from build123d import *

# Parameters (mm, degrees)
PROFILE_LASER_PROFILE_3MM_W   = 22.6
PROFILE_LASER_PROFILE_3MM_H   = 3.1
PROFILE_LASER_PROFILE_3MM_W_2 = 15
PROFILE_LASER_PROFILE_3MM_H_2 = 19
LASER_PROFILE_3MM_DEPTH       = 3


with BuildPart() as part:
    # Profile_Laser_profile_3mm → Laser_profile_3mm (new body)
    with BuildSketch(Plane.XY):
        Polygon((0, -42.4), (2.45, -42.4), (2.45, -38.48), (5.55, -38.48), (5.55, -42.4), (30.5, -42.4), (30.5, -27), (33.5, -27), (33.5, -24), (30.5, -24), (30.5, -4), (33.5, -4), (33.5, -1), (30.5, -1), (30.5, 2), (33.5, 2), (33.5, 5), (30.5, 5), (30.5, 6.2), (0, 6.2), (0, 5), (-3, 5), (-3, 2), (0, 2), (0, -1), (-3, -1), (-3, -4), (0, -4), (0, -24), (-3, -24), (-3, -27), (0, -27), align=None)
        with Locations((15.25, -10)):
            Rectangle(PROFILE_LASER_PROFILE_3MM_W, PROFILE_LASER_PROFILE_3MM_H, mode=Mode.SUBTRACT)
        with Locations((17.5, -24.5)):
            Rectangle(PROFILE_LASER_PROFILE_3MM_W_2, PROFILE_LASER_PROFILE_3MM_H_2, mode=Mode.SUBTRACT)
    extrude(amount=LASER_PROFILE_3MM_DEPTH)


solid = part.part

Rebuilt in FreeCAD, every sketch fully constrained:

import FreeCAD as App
import Part
import Sketcher
from FreeCAD import Vector
Q = App.Units.Quantity

doc = App.newDocument("Part")
body = doc.addObject("PartDesign::Body", "Body")

# Sketch on XY plane
sketch1 = doc.addObject("Sketcher::SketchObject", "Sketch")
body.addObject(sketch1)
sketch1.AttachmentSupport = (doc.XY_Plane, [""])
sketch1.MapMode = "FlatFace"
sketch1.addGeometry([
    Part.LineSegment(Vector(0, -42.4, 0), Vector(2.45, -42.4, 0)),  # 0
    Part.LineSegment(Vector(2.45, -42.4, 0), Vector(2.45, -38.48, 0)),  # 1
    Part.LineSegment(Vector(2.45, -38.48, 0), Vector(5.55, -38.48, 0)),  # 2
    Part.LineSegment(Vector(5.55, -38.48, 0), Vector(5.55, -42.4, 0)),  # 3
    Part.LineSegment(Vector(5.55, -42.4, 0), Vector(30.5, -42.4, 0)),  # 4
    Part.LineSegment(Vector(30.5, -42.4, 0), Vector(30.5, -27, 0)),  # 5
    Part.LineSegment(Vector(30.5, -27, 0), Vector(33.5, -27, 0)),  # 6
    Part.LineSegment(Vector(33.5, -27, 0), Vector(33.5, -24, 0)),  # 7
    Part.LineSegment(Vector(33.5, -24, 0), Vector(30.5, -24, 0)),  # 8
    Part.LineSegment(Vector(30.5, -24, 0), Vector(30.5, -4, 0)),  # 9
    Part.LineSegment(Vector(30.5, -4, 0), Vector(33.5, -4, 0)),  # 10
    Part.LineSegment(Vector(33.5, -4, 0), Vector(33.5, -1, 0)),  # 11
    Part.LineSegment(Vector(33.5, -1, 0), Vector(30.5, -1, 0)),  # 12
    Part.LineSegment(Vector(30.5, -1, 0), Vector(30.5, 2, 0)),  # 13
    Part.LineSegment(Vector(30.5, 2, 0), Vector(33.5, 2, 0)),  # 14
    Part.LineSegment(Vector(33.5, 2, 0), Vector(33.5, 5, 0)),  # 15
    Part.LineSegment(Vector(33.5, 5, 0), Vector(30.5, 5, 0)),  # 16
    Part.LineSegment(Vector(30.5, 5, 0), Vector(30.5, 6.2, 0)),  # 17
    Part.LineSegment(Vector(30.5, 6.2, 0), Vector(0, 6.2, 0)),  # 18
    Part.LineSegment(Vector(0, 6.2, 0), Vector(0, 5, 0)),  # 19
    Part.LineSegment(Vector(0, 5, 0), Vector(-3, 5, 0)),  # 20
    Part.LineSegment(Vector(-3, 5, 0), Vector(-3, 2, 0)),  # 21
    Part.LineSegment(Vector(-3, 2, 0), Vector(0, 2, 0)),  # 22
    Part.LineSegment(Vector(0, 2, 0), Vector(0, -1, 0)),  # 23
    Part.LineSegment(Vector(0, -1, 0), Vector(-3, -1, 0)),  # 24
    Part.LineSegment(Vector(-3, -1, 0), Vector(-3, -4, 0)),  # 25
    Part.LineSegment(Vector(-3, -4, 0), Vector(0, -4, 0)),  # 26
    Part.LineSegment(Vector(0, -4, 0), Vector(0, -24, 0)),  # 27
    Part.LineSegment(Vector(0, -24, 0), Vector(-3, -24, 0)),  # 28
    Part.LineSegment(Vector(-3, -24, 0), Vector(-3, -27, 0)),  # 29
    Part.LineSegment(Vector(-3, -27, 0), Vector(0, -27, 0)),  # 30
    Part.LineSegment(Vector(0, -27, 0), Vector(0, -42.4, 0)),  # 31
    Part.LineSegment(Vector(25, -34, 0), Vector(10, -34, 0)),  # 32
    Part.LineSegment(Vector(10, -34, 0), Vector(10, -15, 0)),  # 33
    Part.LineSegment(Vector(10, -15, 0), Vector(25, -15, 0)),  # 34
    Part.LineSegment(Vector(25, -15, 0), Vector(25, -34, 0)),  # 35
    Part.LineSegment(Vector(26.55, -11.55, 0), Vector(3.95, -11.55, 0)),  # 36
    Part.LineSegment(Vector(3.95, -11.55, 0), Vector(3.95, -8.45, 0)),  # 37
    Part.LineSegment(Vector(3.95, -8.45, 0), Vector(26.55, -8.45, 0)),  # 38
    Part.LineSegment(Vector(26.55, -8.45, 0), Vector(26.55, -11.55, 0)),  # 39
], False)
sketch1.addConstraint([
    Sketcher.Constraint("Coincident", 0, 2, 1, 1),
    Sketcher.Constraint("Coincident", 1, 2, 2, 1),
    Sketcher.Constraint("Coincident", 2, 2, 3, 1),
    Sketcher.Constraint("Coincident", 3, 2, 4, 1),
    Sketcher.Constraint("Coincident", 4, 2, 5, 1),
    Sketcher.Constraint("Coincident", 5, 2, 6, 1),
    Sketcher.Constraint("Coincident", 6, 2, 7, 1),
    Sketcher.Constraint("Coincident", 7, 2, 8, 1),
    Sketcher.Constraint("Coincident", 8, 2, 9, 1),
    Sketcher.Constraint("Coincident", 9, 2, 10, 1),
    Sketcher.Constraint("Coincident", 10, 2, 11, 1),
    Sketcher.Constraint("Coincident", 11, 2, 12, 1),
    Sketcher.Constraint("Coincident", 12, 2, 13, 1),
    Sketcher.Constraint("Coincident", 13, 2, 14, 1),
    Sketcher.Constraint("Coincident", 14, 2, 15, 1),
    Sketcher.Constraint("Coincident", 15, 2, 16, 1),
    Sketcher.Constraint("Coincident", 16, 2, 17, 1),
    Sketcher.Constraint("Coincident", 17, 2, 18, 1),
    Sketcher.Constraint("Coincident", 18, 2, 19, 1),
    Sketcher.Constraint("Coincident", 19, 2, 20, 1),
    Sketcher.Constraint("Coincident", 20, 2, 21, 1),
    Sketcher.Constraint("Coincident", 21, 2, 22, 1),
    Sketcher.Constraint("Coincident", 22, 2, 23, 1),
    Sketcher.Constraint("Coincident", 23, 2, 24, 1),
    Sketcher.Constraint("Coincident", 24, 2, 25, 1),
    Sketcher.Constraint("Coincident", 25, 2, 26, 1),
    Sketcher.Constraint("Coincident", 26, 2, 27, 1),
    Sketcher.Constraint("Coincident", 27, 2, 28, 1),
    Sketcher.Constraint("Coincident", 28, 2, 29, 1),
    Sketcher.Constraint("Coincident", 29, 2, 30, 1),
    Sketcher.Constraint("Coincident", 30, 2, 31, 1),
    Sketcher.Constraint("Coincident", 31, 2, 0, 1),
    Sketcher.Constraint("Coincident", 32, 2, 33, 1),
    Sketcher.Constraint("Coincident", 33, 2, 34, 1),
    Sketcher.Constraint("Coincident", 34, 2, 35, 1),
    Sketcher.Constraint("Coincident", 35, 2, 32, 1),
    Sketcher.Constraint("Coincident", 36, 2, 37, 1),
    Sketcher.Constraint("Coincident", 37, 2, 38, 1),
    Sketcher.Constraint("Coincident", 38, 2, 39, 1),
    Sketcher.Constraint("Coincident", 39, 2, 36, 1),
    Sketcher.Constraint("Horizontal", 0),
    Sketcher.Constraint("Vertical", 1),
    Sketcher.Constraint("Horizontal", 2),
    Sketcher.Constraint("Vertical", 3),
    Sketcher.Constraint("Horizontal", 4),
    Sketcher.Constraint("Vertical", 5),
    Sketcher.Constraint("Horizontal", 6),
    Sketcher.Constraint("Vertical", 7),
    Sketcher.Constraint("Horizontal", 8),
    Sketcher.Constraint("Vertical", 9),
    Sketcher.Constraint("Horizontal", 10),
    Sketcher.Constraint("Vertical", 11),
    Sketcher.Constraint("Horizontal", 12),
    Sketcher.Constraint("Vertical", 13),
    Sketcher.Constraint("Horizontal", 14),
    Sketcher.Constraint("Vertical", 15),
    Sketcher.Constraint("Horizontal", 16),
    Sketcher.Constraint("Vertical", 17),
    Sketcher.Constraint("Horizontal", 18),
    Sketcher.Constraint("Vertical", 19),
    Sketcher.Constraint("Horizontal", 20),
    Sketcher.Constraint("Vertical", 21),
    Sketcher.Constraint("Horizontal", 22),
    Sketcher.Constraint("Vertical", 23),
    Sketcher.Constraint("Horizontal", 24),
    Sketcher.Constraint("Vertical", 25),
    Sketcher.Constraint("Horizontal", 26),
    Sketcher.Constraint("Vertical", 27),
    Sketcher.Constraint("Horizontal", 28),
    Sketcher.Constraint("Vertical", 29),
    Sketcher.Constraint("Horizontal", 30),
    Sketcher.Constraint("Vertical", 31),
    Sketcher.Constraint("Horizontal", 32),
    Sketcher.Constraint("Vertical", 33),
    Sketcher.Constraint("Horizontal", 34),
    Sketcher.Constraint("Vertical", 35),
    Sketcher.Constraint("Horizontal", 36),
    Sketcher.Constraint("Vertical", 37),
    Sketcher.Constraint("Horizontal", 38),
    Sketcher.Constraint("Vertical", 39),
    Sketcher.Constraint("PointOnObject", 18, 2, -2),
    Sketcher.Constraint("PointOnObject", 22, 2, -2),
    Sketcher.Constraint("PointOnObject", 26, 2, -2),
    Sketcher.Constraint("PointOnObject", 30, 2, -2),
    Sketcher.Constraint("Horizontal", 0, 2, 3, 2),
    Sketcher.Constraint("Horizontal", 16, 2, 19, 2),
    Sketcher.Constraint("Horizontal", 14, 2, 21, 2),
    Sketcher.Constraint("Horizontal", 12, 2, 23, 2),
    Sketcher.Constraint("Horizontal", 10, 2, 25, 2),
    Sketcher.Constraint("Horizontal", 8, 2, 27, 2),
    Sketcher.Constraint("Horizontal", 6, 2, 29, 2),
    Sketcher.Constraint("Vertical", 5, 2, 8, 2),
    Sketcher.Constraint("Vertical", 7, 2, 10, 2),
    Sketcher.Constraint("Vertical", 9, 2, 12, 2),
    Sketcher.Constraint("Vertical", 11, 2, 14, 2),
    Sketcher.Constraint("Vertical", 13, 2, 16, 2),
    Sketcher.Constraint("Vertical", 21, 2, 24, 2),
    Sketcher.Constraint("Vertical", 25, 2, 28, 2),
    Sketcher.Constraint("Equal", 16, 20),
    Sketcher.Constraint("Equal", 30, 7),
    Sketcher.Constraint("Equal", 7, 11),
    Sketcher.Constraint("Equal", 11, 13),
    Sketcher.Constraint("Equal", 13, 15),
    Sketcher.Constraint("Equal", 2, 37),
    Sketcher.Constraint("DistanceX", 6, 1, 6, 2, Q("3 mm")),
    Sketcher.Constraint("DistanceX", 32, 2, 32, 1, Q("15 mm")),
    Sketcher.Constraint("DistanceY", 9, 1, 9, 2, Q("20 mm")),
    Sketcher.Constraint("DistanceY", 33, 1, 33, 2, Q("19 mm")),
    Sketcher.Constraint("DistanceX", 2, 1, 2, 2, Q("3.1 mm")),
    Sketcher.Constraint("DistanceX", 18, 2, 18, 1, Q("30.5 mm")),
    Sketcher.Constraint("DistanceX", 36, 2, 36, 1, Q("22.6 mm")),
    Sketcher.Constraint("DistanceY", 5, 1, 5, 2, Q("15.4 mm")),
    Sketcher.Constraint("DistanceY", 17, 1, 17, 2, Q("1.2 mm")),
    Sketcher.Constraint("DistanceY", 5, 2, -1, 1, Q("27 mm")),
    Sketcher.Constraint("DistanceX", -1, 1, 32, 2, Q("10 mm")),
    Sketcher.Constraint("DistanceY", 32, 2, -1, 1, Q("34 mm")),
    Sketcher.Constraint("DistanceX", 0, 1, 0, 2, Q("2.45 mm")),
    Sketcher.Constraint("DistanceY", 1, 1, 1, 2, Q("3.92 mm")),
    Sketcher.Constraint("DistanceX", -1, 1, 36, 2, Q("3.95 mm")),
    Sketcher.Constraint("DistanceY", 36, 2, -1, 1, Q("11.55 mm")),
])
pad1 = doc.addObject("PartDesign::Pad", "Pad")
body.addObject(pad1)
pad1.Profile = sketch1
pad1.Length = 3

doc.recompute()
